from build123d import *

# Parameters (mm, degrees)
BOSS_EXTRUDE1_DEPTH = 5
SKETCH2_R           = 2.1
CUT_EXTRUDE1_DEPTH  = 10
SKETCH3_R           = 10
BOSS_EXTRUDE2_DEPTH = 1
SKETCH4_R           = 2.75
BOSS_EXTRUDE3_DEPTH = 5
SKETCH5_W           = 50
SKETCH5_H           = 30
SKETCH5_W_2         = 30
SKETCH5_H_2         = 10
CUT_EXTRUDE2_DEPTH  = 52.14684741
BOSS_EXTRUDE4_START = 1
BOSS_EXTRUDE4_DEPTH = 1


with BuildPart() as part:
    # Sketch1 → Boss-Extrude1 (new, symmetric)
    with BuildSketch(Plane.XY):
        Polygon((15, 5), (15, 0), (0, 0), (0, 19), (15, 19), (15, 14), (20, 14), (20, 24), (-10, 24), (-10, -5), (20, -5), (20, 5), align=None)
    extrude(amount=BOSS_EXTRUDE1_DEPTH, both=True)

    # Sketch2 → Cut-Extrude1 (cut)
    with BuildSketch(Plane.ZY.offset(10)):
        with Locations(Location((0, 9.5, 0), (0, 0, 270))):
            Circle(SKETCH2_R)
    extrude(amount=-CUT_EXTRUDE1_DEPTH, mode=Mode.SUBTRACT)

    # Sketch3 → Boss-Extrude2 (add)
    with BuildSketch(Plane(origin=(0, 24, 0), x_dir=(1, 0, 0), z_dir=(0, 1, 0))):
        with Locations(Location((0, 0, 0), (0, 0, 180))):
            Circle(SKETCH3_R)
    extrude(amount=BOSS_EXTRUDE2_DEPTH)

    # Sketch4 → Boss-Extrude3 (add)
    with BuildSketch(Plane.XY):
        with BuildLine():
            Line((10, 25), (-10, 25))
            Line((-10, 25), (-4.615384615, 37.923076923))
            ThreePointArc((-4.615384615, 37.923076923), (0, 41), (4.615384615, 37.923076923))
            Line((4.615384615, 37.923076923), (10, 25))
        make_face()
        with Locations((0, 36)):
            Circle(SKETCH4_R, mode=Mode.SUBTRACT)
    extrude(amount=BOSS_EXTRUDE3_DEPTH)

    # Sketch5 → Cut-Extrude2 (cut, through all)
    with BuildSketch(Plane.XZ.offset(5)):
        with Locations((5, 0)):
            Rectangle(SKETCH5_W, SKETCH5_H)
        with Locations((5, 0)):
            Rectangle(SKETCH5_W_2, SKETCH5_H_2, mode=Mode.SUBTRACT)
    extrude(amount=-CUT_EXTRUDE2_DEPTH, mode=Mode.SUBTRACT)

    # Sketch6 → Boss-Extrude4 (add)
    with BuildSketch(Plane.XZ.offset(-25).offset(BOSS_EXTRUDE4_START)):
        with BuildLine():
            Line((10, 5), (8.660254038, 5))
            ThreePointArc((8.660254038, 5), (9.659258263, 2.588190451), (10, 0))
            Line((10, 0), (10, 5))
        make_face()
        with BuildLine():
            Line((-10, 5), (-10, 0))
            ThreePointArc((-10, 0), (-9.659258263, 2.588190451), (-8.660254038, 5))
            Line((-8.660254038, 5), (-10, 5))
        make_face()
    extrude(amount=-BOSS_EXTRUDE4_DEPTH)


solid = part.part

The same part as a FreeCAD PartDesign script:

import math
import FreeCAD as App
import Part
import Sketcher
Q = App.Units.Quantity

doc = App.newDocument("Part")
params = doc.addObject("Spreadsheet::Sheet", "Params")
for row, (alias, value) in enumerate([
    ("sketch1_width", "15 mm"),
    ("sketch1_width2", "5 mm"),
    ("sketch1_width3", "30 mm"),
    ("sketch1_height", "19 mm"),
    ("sketch1_height2", "10 mm"),
    ("pad1_length", "10 mm"),
    ("sketch2_diameter", "4.2 mm"),
    ("pocket1_length", "10 mm"),
    ("sketch3_diameter", "20 mm"),
    ("pad2_length", "1 mm"),
    ("sketch4_radius", "5 mm"),
    ("sketch4_diameter", "5.5 mm"),
    ("sketch4_width", "20 mm"),
    ("sketch4_length", "14 mm"),
    ("pad3_length", "5 mm"),
    ("sketch5_width", "50 mm"),
    ("sketch5_width2", "30 mm"),
    ("sketch5_height", "10 mm"),
    ("sketch6_radius", "10 mm"),
    ("sketch6_height", "5 mm"),
    ("pad4_length", "1 mm"),
], start=1):
    params.set(f"A{row}", alias)
    params.set(f"B{row}", "=" + value)
    params.setAlias(f"B{row}", alias)

body = doc.addObject("PartDesign::Body", "Body")

sketch1 = body.newObject("Sketcher::SketchObject", "Sketch")
sketch1.AttachmentSupport = (doc.getObject("XY_Plane"), [""])
sketch1.MapMode = "FlatFace"
sketch1.addGeometry([
    Part.LineSegment(App.Vector(15, 5, 0), App.Vector(15, 0, 0)),
    Part.LineSegment(App.Vector(15, 0, 0), App.Vector(0, 0, 0)),
    Part.LineSegment(App.Vector(0, 0, 0), App.Vector(0, 19, 0)),
    Part.LineSegment(App.Vector(0, 19, 0), App.Vector(15, 19, 0)),
    Part.LineSegment(App.Vector(15, 19, 0), App.Vector(15, 14, 0)),
    Part.LineSegment(App.Vector(15, 14, 0), App.Vector(20, 14, 0)),
    Part.LineSegment(App.Vector(20, 14, 0), App.Vector(20, 24, 0)),
    Part.LineSegment(App.Vector(20, 24, 0), App.Vector(-10, 24, 0)),
    Part.LineSegment(App.Vector(-10, 24, 0), App.Vector(-10, -5, 0)),
    Part.LineSegment(App.Vector(-10, -5, 0), App.Vector(20, -5, 0)),
    Part.LineSegment(App.Vector(20, -5, 0), App.Vector(20, 5, 0)),
    Part.LineSegment(App.Vector(20, 5, 0), App.Vector(15, 5, 0)),
], False)
sketch1.addConstraint([
    Sketcher.Constraint("Coincident", 0, 2, 1, 1),
    Sketcher.Constraint("Coincident", 1, 2, 2, 1),
    Sketcher.Constraint("Coincident", 2, 2, 3, 1),
    Sketcher.Constraint("Coincident", 3, 2, 4, 1),
    Sketcher.Constraint("Coincident", 4, 2, 5, 1),
    Sketcher.Constraint("Coincident", 5, 2, 6, 1),
    Sketcher.Constraint("Coincident", 6, 2, 7, 1),
    Sketcher.Constraint("Coincident", 7, 2, 8, 1),
    Sketcher.Constraint("Coincident", 8, 2, 9, 1),
    Sketcher.Constraint("Coincident", 9, 2, 10, 1),
    Sketcher.Constraint("Coincident", 10, 2, 11, 1),
    Sketcher.Constraint("Coincident", 11, 2, 0, 1),
    Sketcher.Constraint("Vertical", 0),
    Sketcher.Constraint("Horizontal", 1),
    Sketcher.Constraint("Vertical", 2),
    Sketcher.Constraint("Horizontal", 3),
    Sketcher.Constraint("Vertical", 4),
    Sketcher.Constraint("Horizontal", 5),
    Sketcher.Constraint("Vertical", 6),
    Sketcher.Constraint("Horizontal", 7),
    Sketcher.Constraint("Vertical", 8),
    Sketcher.Constraint("Horizontal", 9),
    Sketcher.Constraint("Vertical", 10),
    Sketcher.Constraint("Horizontal", 11),
    Sketcher.Constraint("Coincident", 1, 2, -1, 1),
    Sketcher.Constraint("Vertical", 0, 2, 3, 2),
    Sketcher.Constraint("Vertical", 6, 2, 9, 2),
    Sketcher.Constraint("Equal", 11, 0),
    Sketcher.Constraint("Equal", 0, 4),
    Sketcher.Constraint("Equal", 6, 10),
    Sketcher.Constraint("DistanceX", 1, 2, 1, 1, Q("15 mm")),
    Sketcher.Constraint("DistanceX", 5, 1, 5, 2, Q("5 mm")),
    Sketcher.Constraint("DistanceX", 7, 2, 7, 1, Q("30 mm")),
    Sketcher.Constraint("DistanceY", 2, 1, 2, 2, Q("19 mm")),
    Sketcher.Constraint("DistanceY", 6, 1, 6, 2, Q("10 mm")),
])
sketch1.setExpression("Constraints[30]", "Params.sketch1_width")
sketch1.setExpression("Constraints[31]", "Params.sketch1_width2")
sketch1.setExpression("Constraints[32]", "Params.sketch1_width3")
sketch1.setExpression("Constraints[33]", "Params.sketch1_height")
sketch1.setExpression("Constraints[34]", "Params.sketch1_height2")
pad1 = body.newObject("PartDesign::Pad", "Pad")
pad1.Profile = sketch1
pad1.setExpression("Length", "Params.pad1_length")
pad1.Midplane = True

sketch2 = body.newObject("Sketcher::SketchObject", "Sketch001")
sketch2.AttachmentSupport = (doc.getObject("YZ_Plane"), [""])
sketch2.MapMode = "FlatFace"
sketch2.AttachmentOffset = App.Placement(App.Vector(0, 0, -10), App.Rotation())
sketch2.addGeometry(Part.Circle(App.Vector(9.5, 0, 0), App.Vector(0, 0, 1), 2.1), False)
sketch2.addConstraint([
    Sketcher.Constraint("PointOnObject", 0, 3, -1),
    Sketcher.Constraint("Diameter", 0, Q("4.2 mm")),
    Sketcher.Constraint("DistanceX", -1, 1, 0, 3, Q("9.5 mm")),
])
sketch2.setExpression("Constraints[1]", "Params.sketch2_diameter")
pocket1 = body.newObject("PartDesign::Pocket", "Pocket")
pocket1.Profile = sketch2
pocket1.setExpression("Length", "Params.pocket1_length")
pocket1.Reversed = True

sketch3 = body.newObject("Sketcher::SketchObject", "Sketch002")
sketch3.AttachmentSupport = (doc.getObject("XZ_Plane"), [""])
sketch3.MapMode = "FlatFace"
sketch3.AttachmentOffset = App.Placement(App.Vector(0, 0, -24), App.Rotation())
sketch3.addGeometry(Part.Circle(App.Vector(0, 0, 0), App.Vector(0, 0, 1), 10), False)
sketch3.addConstraint([
    Sketcher.Constraint("Coincident", 0, 3, -1, 1),
    Sketcher.Constraint("Diameter", 0, Q("20 mm")),
])
sketch3.setExpression("Constraints[1]", "Params.sketch3_diameter")
pad2 = body.newObject("PartDesign::Pad", "Pad001")
pad2.Profile = sketch3
pad2.setExpression("Length", "Params.pad2_length")
pad2.Reversed = True

sketch4 = body.newObject("Sketcher::SketchObject", "Sketch003")
sketch4.AttachmentSupport = (doc.getObject("XY_Plane"), [""])
sketch4.MapMode = "FlatFace"
sketch4.addGeometry([
    Part.LineSegment(App.Vector(-10, 25, 0), App.Vector(10, 25, 0)),
    Part.LineSegment(App.Vector(10, 25, 0), App.Vector(4.615385, 37.923077, 0)),
    Part.ArcOfCircle(Part.Circle(App.Vector(0, 36, 0), App.Vector(0, 0, 1), 5), math.radians(22.619865), math.radians(157.380135)),
    Part.LineSegment(App.Vector(-4.615385, 37.923077, 0), App.Vector(-10, 25, 0)),
    Part.Circle(App.Vector(0, 36, 0), App.Vector(0, 0, 1), 2.75),
], False)
sketch4.addConstraint([
    Sketcher.Constraint("Coincident", 0, 2, 1, 1),
    Sketcher.Constraint("Tangent", 1, 2, 2, 1),
    Sketcher.Constraint("Tangent", 2, 2, 3, 1),
    Sketcher.Constraint("Coincident", 3, 2, 0, 1),
    Sketcher.Constraint("Horizontal", 0),
    Sketcher.Constraint("Coincident", 4, 3, 2, 3),
    Sketcher.Constraint("Symmetric", 1, 2, 2, 2, -2),
    Sketcher.Constraint("Radius", 2, Q("5 mm")),
    Sketcher.Constraint("Diameter", 4, Q("5.5 mm")),
    Sketcher.Constraint("DistanceX", 0, 1, 0, 2, Q("20 mm")),
    Sketcher.Constraint("Distance", 1, Q("14 mm")),
    Sketcher.Constraint("DistanceY", -1, 1, 2, 3, Q("36 mm")),
])
sketch4.setExpression("Constraints[7]", "Params.sketch4_radius")
sketch4.setExpression("Constraints[8]", "Params.sketch4_diameter")
sketch4.setExpression("Constraints[9]", "Params.sketch4_width")
sketch4.setExpression("Constraints[10]", "Params.sketch4_length")
pad3 = body.newObject("PartDesign::Pad", "Pad002")
pad3.Profile = sketch4
pad3.setExpression("Length", "Params.pad3_length")

sketch5 = body.newObject("Sketcher::SketchObject", "Sketch004")
sketch5.AttachmentSupport = (doc.getObject("XZ_Plane"), [""])
sketch5.MapMode = "FlatFace"
sketch5.AttachmentOffset = App.Placement(App.Vector(0, 0, 5), App.Rotation())
sketch5.addGeometry([
    Part.LineSegment(App.Vector(-20, 15, 0), App.Vector(-20, -15, 0)),
    Part.LineSegment(App.Vector(-20, -15, 0), App.Vector(30, -15, 0)),
    Part.LineSegment(App.Vector(30, -15, 0), App.Vector(30, 15, 0)),
    Part.LineSegment(App.Vector(30, 15, 0), App.Vector(-20, 15, 0)),
    Part.LineSegment(App.Vector(20, -5, 0), App.Vector(-10, -5, 0)),
    Part.LineSegment(App.Vector(-10, -5, 0), App.Vector(-10, 5, 0)),
    Part.LineSegment(App.Vector(-10, 5, 0), App.Vector(20, 5, 0)),
    Part.LineSegment(App.Vector(20, 5, 0), App.Vector(20, -5, 0)),
], False)
sketch5.addConstraint([
    Sketcher.Constraint("Coincident", 0, 2, 1, 1),
    Sketcher.Constraint("Coincident", 1, 2, 2, 1),
    Sketcher.Constraint("Coincident", 2, 2, 3, 1),
    Sketcher.Constraint("Coincident", 3, 2, 0, 1),
    Sketcher.Constraint("Coincident", 4, 2, 5, 1),
    Sketcher.Constraint("Coincident", 5, 2, 6, 1),
    Sketcher.Constraint("Coincident", 6, 2, 7, 1),
    Sketcher.Constraint("Coincident", 7, 2, 4, 1),
    Sketcher.Constraint("Vertical", 0),
    Sketcher.Constraint("Horizontal", 1),
    Sketcher.Constraint("Vertical", 2),
    Sketcher.Constraint("Horizontal", 3),
    Sketcher.Constraint("Horizontal", 4),
    Sketcher.Constraint("Vertical", 5),
    Sketcher.Constraint("Horizontal", 6),
    Sketcher.Constraint("Vertical", 7),
    Sketcher.Constraint("Equal", 6, 0),
    Sketcher.Constraint("DistanceX", 1, 1, 1, 2, Q("50 mm")),
    Sketcher.Constraint("DistanceX", 4, 2, 4, 1, Q("30 mm")),
    Sketcher.Constraint("DistanceY", 5, 1, 5, 2, Q("10 mm")),
    Sketcher.Constraint("DistanceX", 0, 2, -1, 1, Q("20 mm")),
    Sketcher.Constraint("DistanceY", 0, 2, -1, 1, Q("15 mm")),
    Sketcher.Constraint("DistanceX", 4, 2, -1, 1, Q("10 mm")),
    Sketcher.Constraint("DistanceY", 4, 2, -1, 1, Q("5 mm")),
])
sketch5.setExpression("Constraints[17]", "Params.sketch5_width")
sketch5.setExpression("Constraints[18]", "Params.sketch5_width2")
sketch5.setExpression("Constraints[19]", "Params.sketch5_height")
pocket2 = body.newObject("PartDesign::Pocket", "Pocket001")
pocket2.Profile = sketch5
pocket2.Type = "ThroughAll"

sketch6 = body.newObject("Sketcher::SketchObject", "Sketch005")
sketch6.AttachmentSupport = (doc.getObject("XZ_Plane"), [""])
sketch6.MapMode = "FlatFace"
sketch6.AttachmentOffset = App.Placement(App.Vector(0, 0, -24), App.Rotation())
sketch6.addGeometry([
    Part.LineSegment(App.Vector(10, 5, 0), App.Vector(8.660254, 5, 0)),
    Part.ArcOfCircle(Part.Circle(App.Vector(0, 0, 0), App.Vector(0, 0, 1), 10), math.radians(0), math.radians(30)),
    Part.LineSegment(App.Vector(10, 0, 0), App.Vector(10, 5, 0)),
    Part.LineSegment(App.Vector(-10, 5, 0), App.Vector(-10, 0, 0)),
    Part.ArcOfCircle(Part.Circle(App.Vector(0, 0, 0), App.Vector(0, 0, 1), 10), math.radians(150), math.radians(180)),
    Part.LineSegment(App.Vector(-8.660254, 5, 0), App.Vector(-10, 5, 0)),
], False)
sketch6.addConstraint([
    Sketcher.Constraint("Coincident", 0, 2, 1, 2),
    Sketcher.Constraint("Tangent", 1, 1, 2, 1),
    Sketcher.Constraint("Coincident", 2, 2, 0, 1),
    Sketcher.Constraint("Tangent", 3, 2, 4, 2),
    Sketcher.Constraint("Coincident", 4, 1, 5, 1),
    Sketcher.Constraint("Coincident", 5, 2, 3, 1),
    Sketcher.Constraint("Horizontal", 0),
    Sketcher.Constraint("Vertical", 2),
    Sketcher.Constraint("Vertical", 3),
    Sketcher.Constraint("Horizontal", 5),
    Sketcher.Constraint("Coincident", 1, 3, -1, 1),
    Sketcher.Constraint("Coincident", 4, 3, -1, 1),
    Sketcher.Constraint("Equal", 1, 4),
    Sketcher.Constraint("Horizontal", 2, 2, 4, 1),
    Sketcher.Constraint("Radius", 1, Q("10 mm")),
    Sketcher.Constraint("DistanceY", 2, 1, 2, 2, Q("5 mm")),
])
sketch6.setExpression("Constraints[14]", "Params.sketch6_radius")
sketch6.setExpression("Constraints[15]", "Params.sketch6_height")
pad4 = body.newObject("PartDesign::Pad", "Pad003")
pad4.Profile = sketch6
pad4.setExpression("Length", "Params.pad4_length")
pad4.Reversed = True

doc.recompute()
